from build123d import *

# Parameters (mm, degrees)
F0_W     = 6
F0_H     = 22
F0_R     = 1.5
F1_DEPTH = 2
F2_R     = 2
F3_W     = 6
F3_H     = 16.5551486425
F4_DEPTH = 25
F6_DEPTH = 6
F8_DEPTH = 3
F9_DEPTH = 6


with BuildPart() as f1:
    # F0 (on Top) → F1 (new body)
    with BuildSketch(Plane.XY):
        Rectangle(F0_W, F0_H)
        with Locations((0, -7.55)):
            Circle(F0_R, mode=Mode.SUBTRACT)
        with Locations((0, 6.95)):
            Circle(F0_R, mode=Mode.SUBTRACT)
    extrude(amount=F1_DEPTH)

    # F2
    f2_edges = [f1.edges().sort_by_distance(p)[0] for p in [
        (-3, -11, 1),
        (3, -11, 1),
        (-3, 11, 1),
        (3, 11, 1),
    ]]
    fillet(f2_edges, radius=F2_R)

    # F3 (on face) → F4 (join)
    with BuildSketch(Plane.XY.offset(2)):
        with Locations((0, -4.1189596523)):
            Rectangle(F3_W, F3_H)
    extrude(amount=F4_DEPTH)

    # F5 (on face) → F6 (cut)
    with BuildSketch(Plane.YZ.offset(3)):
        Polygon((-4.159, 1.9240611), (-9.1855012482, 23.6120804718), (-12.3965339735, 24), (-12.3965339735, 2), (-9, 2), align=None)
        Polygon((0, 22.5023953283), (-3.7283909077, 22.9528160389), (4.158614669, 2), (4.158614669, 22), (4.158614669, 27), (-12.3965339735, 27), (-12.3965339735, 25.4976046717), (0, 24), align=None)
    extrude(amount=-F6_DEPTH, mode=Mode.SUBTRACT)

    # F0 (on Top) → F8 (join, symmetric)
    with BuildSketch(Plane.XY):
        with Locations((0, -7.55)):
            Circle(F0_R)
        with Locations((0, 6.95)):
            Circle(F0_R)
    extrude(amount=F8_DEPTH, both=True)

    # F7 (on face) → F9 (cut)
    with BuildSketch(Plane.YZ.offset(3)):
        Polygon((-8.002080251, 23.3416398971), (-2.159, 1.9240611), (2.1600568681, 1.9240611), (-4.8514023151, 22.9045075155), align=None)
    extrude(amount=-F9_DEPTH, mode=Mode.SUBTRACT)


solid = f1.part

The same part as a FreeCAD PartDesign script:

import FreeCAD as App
import Part
import Sketcher

V = App.Vector


def edges_at(feature, points):
    """Names of the edges that pass closest to the given points."""
    edges = feature.Shape.Edges
    near = lambda p: min(range(len(edges)), key=lambda i: edges[i].distToShape(Part.Vertex(*p))[0])
    return sorted({f"Edge{near(p) + 1}" for p in points})


def add_polygon(sketch, points):
    """Adds a closed chain of lines whose ends are joined by coincident constraints."""
    first, n = sketch.GeometryCount, len(points)
    for a, b in zip(points, points[1:] + points[:1]):
        sketch.addGeometry(Part.LineSegment(App.Vector(*a, 0), App.Vector(*b, 0)), False)
    for i in range(n):
        sketch.addConstraint(Sketcher.Constraint("Coincident", first + i, 2, first + (i + 1) % n, 1))

doc = App.newDocument("Part")
params = doc.addObject("Spreadsheet::Sheet", "Params")
for row, (alias, value) in enumerate([
    ("sketch1_diameter", "3 mm"),
    ("sketch1_width", "6 mm"),
    ("sketch1_height", "22 mm"),
    ("pad1_length", "2 mm"),
    ("fillet_radius", "2 mm"),
    ("sketch2_width", "6 mm"),
    ("pad2_length", "25 mm"),
    ("sketch3_height", "22 mm"),
    ("sketch3_height2", "25 mm"),
    ("pocket1_length", "6 mm"),
    ("sketch4_diameter", "3 mm"),
    ("pad3_length", "6 mm"),
    ("pocket2_length", "6 mm"),
], start=1):
    params.set(f"A{row}", alias)
    params.set(f"B{row}", "=" + value)
    params.setAlias(f"B{row}", alias)

body = doc.addObject("PartDesign::Body", "Body")

sketch1 = body.newObject("Sketcher::SketchObject", "Sketch")
sketch1.AttachmentSupport = (doc.getObject("XY_Plane"), [""])
sketch1.MapMode = "FlatFace"
add_polygon(sketch1, [(-3, 11), (-3, -11), (3, -11), (3, 11)])
sketch1.addGeometry(Part.Circle(V(0, -7.55, 0), V(0, 0, 1), 1.5), False)
sketch1.addGeometry(Part.Circle(V(0, 6.95, 0), V(0, 0, 1), 1.5), False)
sketch1.addConstraint([
    Sketcher.Constraint("Vertical", 0),
    Sketcher.Constraint("Horizontal", 1),
    Sketcher.Constraint("Vertical", 2),
    Sketcher.Constraint("Horizontal", 3),
    Sketcher.Constraint("Equal", 4, 5),
    Sketcher.Constraint("Symmetric", 0, 2, 2, 2, -1, 1),
    Sketcher.Constraint("PointOnObject", 4, 3, -2),
    Sketcher.Constraint("PointOnObject", 5, 3, -2),
    Sketcher.Constraint("Diameter", 4, 3.0),
    Sketcher.Constraint("DistanceX", 1, 1, 1, 2, 6.0),
    Sketcher.Constraint("DistanceY", 0, 2, 0, 1, 22.0),
    Sketcher.Constraint("DistanceY", 4, 3, 5, 3, 14.5),
    Sketcher.Constraint("DistanceY", 4, 3, -1, 1, 7.55),
])
sketch1.setExpression("Constraints[12]", "Params.sketch1_diameter")
sketch1.setExpression("Constraints[13]", "Params.sketch1_width")
sketch1.setExpression("Constraints[14]", "Params.sketch1_height")
pad1 = body.newObject("PartDesign::Pad", "Pad")
pad1.Profile = sketch1
pad1.setExpression("Length", "Params.pad1_length")
doc.recompute()

fillet = body.newObject("PartDesign::Fillet", "Fillet")
fillet.Base = (pad1, edges_at(pad1, [
    (-3, -11, 1),
    (3, -11, 1),
    (-3, 11, 1),
    (3, 11, 1),
]))
fillet.setExpression("Radius", "Params.fillet_radius")

sketch2 = body.newObject("Sketcher::SketchObject", "Sketch001")
sketch2.AttachmentSupport = (doc.getObject("XY_Plane"), [""])
sketch2.MapMode = "FlatFace"
sketch2.AttachmentOffset = App.Placement(V(0, 0, 2), App.Rotation())
add_polygon(sketch2, [(-3, 4.158615), (-3, -12.396534), (3, -12.396534), (3, 4.158615)])
sketch2.addConstraint([
    Sketcher.Constraint("Vertical", 0),
    Sketcher.Constraint("Horizontal", 1),
    Sketcher.Constraint("Vertical", 2),
    Sketcher.Constraint("Horizontal", 3),
    Sketcher.Constraint("DistanceX", 1, 1, 1, 2, 6.0),
    Sketcher.Constraint("DistanceX", 0, 2, -1, 1, 3.0),
    Sketcher.Constraint("DistanceY", 0, 2, 0, 1, 16.555149),
    Sketcher.Constraint("DistanceY", 0, 2, -1, 1, 12.396534),
])
sketch2.setExpression("Constraints[8]", "Params.sketch2_width")
pad2 = body.newObject("PartDesign::Pad", "Pad001")
pad2.Profile = sketch2
pad2.setExpression("Length", "Params.pad2_length")

sketch3 = body.newObject("Sketcher::SketchObject", "Sketch002")
sketch3.AttachmentSupport = (doc.getObject("YZ_Plane"), [""])
sketch3.MapMode = "FlatFace"
sketch3.AttachmentOffset = App.Placement(V(0, 0, 3), App.Rotation())
add_polygon(sketch3, [(-4.159, 1.924061), (-9.185501, 23.61208), (-12.396534, 24), (-12.396534, 2), (-9, 2)])
add_polygon(sketch3, [(0, 22.502395), (-3.728391, 22.952816), (4.158615, 2), (4.158615, 27), (-12.396534, 27), (-12.396534, 25.497605), (0, 24)])
sketch3.addConstraint([
    Sketcher.Constraint("Vertical", 2),
    Sketcher.Constraint("Horizontal", 3),
    Sketcher.Constraint("Vertical", 7),
    Sketcher.Constraint("Horizontal", 8),
    Sketcher.Constraint("Vertical", 9),
    Sketcher.Constraint("Vertical", 11),
    Sketcher.Constraint("PointOnObject", 10, 2, -2),
    Sketcher.Constraint("Parallel", 1, 5),
    Sketcher.Constraint("Parallel", 5, 10),
    Sketcher.Constraint("Horizontal", 3, 2, 6, 2),
    Sketcher.Constraint("Horizontal", 1, 2, 10, 2),
    Sketcher.Constraint("Vertical", 2, 2, 8, 2),
    Sketcher.Constraint("DistanceY", 2, 2, 2, 1, 22.0),
    Sketcher.Constraint("DistanceY", 7, 1, 7, 2, 25.0),
    Sketcher.Constraint("DistanceY", -1, 1, 1, 2, 24.0),
    Sketcher.Constraint("DistanceX", 3, 2, -1, 1, 9.0),
    Sketcher.Constraint("DistanceX", 4, 2, -1, 1, 4.159),
    Sketcher.Constraint("Distance", 5, 3.7555),
    Sketcher.Constraint("DistanceX", 8, 2, 8, 1, 16.555149),
    Sketcher.Constraint("DistanceX", 0, 2, -1, 1, 9.185501),
    Sketcher.Constraint("Distance", 0, 22.262882),
    Sketcher.Constraint("Distance", 1, 3.23438),
    Sketcher.Constraint("DistanceX", 3, 1, 3, 2, 3.396534),
    Sketcher.Constraint("DistanceY", 11, 2, 11, 1, 1.497605),
])
sketch3.setExpression("Constraints[24]", "Params.sketch3_height")
sketch3.setExpression("Constraints[25]", "Params.sketch3_height2")
pocket1 = body.newObject("PartDesign::Pocket", "Pocket")
pocket1.Profile = sketch3
pocket1.setExpression("Length", "Params.pocket1_length")

sketch4 = body.newObject("Sketcher::SketchObject", "Sketch003")
sketch4.AttachmentSupport = (doc.getObject("XY_Plane"), [""])
sketch4.MapMode = "FlatFace"
sketch4.addGeometry([
    Part.Circle(V(0, -7.55, 0), V(0, 0, 1), 1.5),
    Part.Circle(V(0, 6.95, 0), V(0, 0, 1), 1.5),
], False)
sketch4.addConstraint([
    Sketcher.Constraint("Equal", 0, 1),
    Sketcher.Constraint("PointOnObject", 0, 3, -2),
    Sketcher.Constraint("PointOnObject", 1, 3, -2),
    Sketcher.Constraint("Diameter", 0, 3.0),
    Sketcher.Constraint("DistanceY", 0, 3, 1, 3, 14.5),
    Sketcher.Constraint("DistanceY", 0, 3, -1, 1, 7.55),
])
sketch4.setExpression("Constraints[3]", "Params.sketch4_diameter")
pad3 = body.newObject("PartDesign::Pad", "Pad002")
pad3.Profile = sketch4
pad3.setExpression("Length", "Params.pad3_length")
pad3.Midplane = True

sketch5 = body.newObject("Sketcher::SketchObject", "Sketch004")
sketch5.AttachmentSupport = (doc.getObject("YZ_Plane"), [""])
sketch5.MapMode = "FlatFace"
sketch5.AttachmentOffset = App.Placement(V(0, 0, 3), App.Rotation())
add_polygon(sketch5, [(-8.00208, 23.34164), (-2.159, 1.924061), (2.160057, 1.924061), (-4.851402, 22.904508)])
sketch5.addConstraint([
    Sketcher.Constraint("Horizontal", 1),
    Sketcher.Constraint("DistanceX", 0, 2, -1, 1, 2.159),
    Sketcher.Constraint("Distance", 0, 22.200321),
    Sketcher.Constraint("DistanceX", 1, 1, 1, 2, 4.319057),
    Sketcher.Constraint("DistanceY", -1, 1, 0, 2, 1.924061),
    Sketcher.Constraint("DistanceX", 3, 2, -1, 1, 8.00208),
    Sketcher.Constraint("DistanceX", 2, 2, 1, 2, 7.011459),
    Sketcher.Constraint("Distance", 2, 22.121024),
])
pocket2 = body.newObject("PartDesign::Pocket", "Pocket001")
pocket2.Profile = sketch5
pocket2.setExpression("Length", "Params.pocket2_length")

doc.recompute()
